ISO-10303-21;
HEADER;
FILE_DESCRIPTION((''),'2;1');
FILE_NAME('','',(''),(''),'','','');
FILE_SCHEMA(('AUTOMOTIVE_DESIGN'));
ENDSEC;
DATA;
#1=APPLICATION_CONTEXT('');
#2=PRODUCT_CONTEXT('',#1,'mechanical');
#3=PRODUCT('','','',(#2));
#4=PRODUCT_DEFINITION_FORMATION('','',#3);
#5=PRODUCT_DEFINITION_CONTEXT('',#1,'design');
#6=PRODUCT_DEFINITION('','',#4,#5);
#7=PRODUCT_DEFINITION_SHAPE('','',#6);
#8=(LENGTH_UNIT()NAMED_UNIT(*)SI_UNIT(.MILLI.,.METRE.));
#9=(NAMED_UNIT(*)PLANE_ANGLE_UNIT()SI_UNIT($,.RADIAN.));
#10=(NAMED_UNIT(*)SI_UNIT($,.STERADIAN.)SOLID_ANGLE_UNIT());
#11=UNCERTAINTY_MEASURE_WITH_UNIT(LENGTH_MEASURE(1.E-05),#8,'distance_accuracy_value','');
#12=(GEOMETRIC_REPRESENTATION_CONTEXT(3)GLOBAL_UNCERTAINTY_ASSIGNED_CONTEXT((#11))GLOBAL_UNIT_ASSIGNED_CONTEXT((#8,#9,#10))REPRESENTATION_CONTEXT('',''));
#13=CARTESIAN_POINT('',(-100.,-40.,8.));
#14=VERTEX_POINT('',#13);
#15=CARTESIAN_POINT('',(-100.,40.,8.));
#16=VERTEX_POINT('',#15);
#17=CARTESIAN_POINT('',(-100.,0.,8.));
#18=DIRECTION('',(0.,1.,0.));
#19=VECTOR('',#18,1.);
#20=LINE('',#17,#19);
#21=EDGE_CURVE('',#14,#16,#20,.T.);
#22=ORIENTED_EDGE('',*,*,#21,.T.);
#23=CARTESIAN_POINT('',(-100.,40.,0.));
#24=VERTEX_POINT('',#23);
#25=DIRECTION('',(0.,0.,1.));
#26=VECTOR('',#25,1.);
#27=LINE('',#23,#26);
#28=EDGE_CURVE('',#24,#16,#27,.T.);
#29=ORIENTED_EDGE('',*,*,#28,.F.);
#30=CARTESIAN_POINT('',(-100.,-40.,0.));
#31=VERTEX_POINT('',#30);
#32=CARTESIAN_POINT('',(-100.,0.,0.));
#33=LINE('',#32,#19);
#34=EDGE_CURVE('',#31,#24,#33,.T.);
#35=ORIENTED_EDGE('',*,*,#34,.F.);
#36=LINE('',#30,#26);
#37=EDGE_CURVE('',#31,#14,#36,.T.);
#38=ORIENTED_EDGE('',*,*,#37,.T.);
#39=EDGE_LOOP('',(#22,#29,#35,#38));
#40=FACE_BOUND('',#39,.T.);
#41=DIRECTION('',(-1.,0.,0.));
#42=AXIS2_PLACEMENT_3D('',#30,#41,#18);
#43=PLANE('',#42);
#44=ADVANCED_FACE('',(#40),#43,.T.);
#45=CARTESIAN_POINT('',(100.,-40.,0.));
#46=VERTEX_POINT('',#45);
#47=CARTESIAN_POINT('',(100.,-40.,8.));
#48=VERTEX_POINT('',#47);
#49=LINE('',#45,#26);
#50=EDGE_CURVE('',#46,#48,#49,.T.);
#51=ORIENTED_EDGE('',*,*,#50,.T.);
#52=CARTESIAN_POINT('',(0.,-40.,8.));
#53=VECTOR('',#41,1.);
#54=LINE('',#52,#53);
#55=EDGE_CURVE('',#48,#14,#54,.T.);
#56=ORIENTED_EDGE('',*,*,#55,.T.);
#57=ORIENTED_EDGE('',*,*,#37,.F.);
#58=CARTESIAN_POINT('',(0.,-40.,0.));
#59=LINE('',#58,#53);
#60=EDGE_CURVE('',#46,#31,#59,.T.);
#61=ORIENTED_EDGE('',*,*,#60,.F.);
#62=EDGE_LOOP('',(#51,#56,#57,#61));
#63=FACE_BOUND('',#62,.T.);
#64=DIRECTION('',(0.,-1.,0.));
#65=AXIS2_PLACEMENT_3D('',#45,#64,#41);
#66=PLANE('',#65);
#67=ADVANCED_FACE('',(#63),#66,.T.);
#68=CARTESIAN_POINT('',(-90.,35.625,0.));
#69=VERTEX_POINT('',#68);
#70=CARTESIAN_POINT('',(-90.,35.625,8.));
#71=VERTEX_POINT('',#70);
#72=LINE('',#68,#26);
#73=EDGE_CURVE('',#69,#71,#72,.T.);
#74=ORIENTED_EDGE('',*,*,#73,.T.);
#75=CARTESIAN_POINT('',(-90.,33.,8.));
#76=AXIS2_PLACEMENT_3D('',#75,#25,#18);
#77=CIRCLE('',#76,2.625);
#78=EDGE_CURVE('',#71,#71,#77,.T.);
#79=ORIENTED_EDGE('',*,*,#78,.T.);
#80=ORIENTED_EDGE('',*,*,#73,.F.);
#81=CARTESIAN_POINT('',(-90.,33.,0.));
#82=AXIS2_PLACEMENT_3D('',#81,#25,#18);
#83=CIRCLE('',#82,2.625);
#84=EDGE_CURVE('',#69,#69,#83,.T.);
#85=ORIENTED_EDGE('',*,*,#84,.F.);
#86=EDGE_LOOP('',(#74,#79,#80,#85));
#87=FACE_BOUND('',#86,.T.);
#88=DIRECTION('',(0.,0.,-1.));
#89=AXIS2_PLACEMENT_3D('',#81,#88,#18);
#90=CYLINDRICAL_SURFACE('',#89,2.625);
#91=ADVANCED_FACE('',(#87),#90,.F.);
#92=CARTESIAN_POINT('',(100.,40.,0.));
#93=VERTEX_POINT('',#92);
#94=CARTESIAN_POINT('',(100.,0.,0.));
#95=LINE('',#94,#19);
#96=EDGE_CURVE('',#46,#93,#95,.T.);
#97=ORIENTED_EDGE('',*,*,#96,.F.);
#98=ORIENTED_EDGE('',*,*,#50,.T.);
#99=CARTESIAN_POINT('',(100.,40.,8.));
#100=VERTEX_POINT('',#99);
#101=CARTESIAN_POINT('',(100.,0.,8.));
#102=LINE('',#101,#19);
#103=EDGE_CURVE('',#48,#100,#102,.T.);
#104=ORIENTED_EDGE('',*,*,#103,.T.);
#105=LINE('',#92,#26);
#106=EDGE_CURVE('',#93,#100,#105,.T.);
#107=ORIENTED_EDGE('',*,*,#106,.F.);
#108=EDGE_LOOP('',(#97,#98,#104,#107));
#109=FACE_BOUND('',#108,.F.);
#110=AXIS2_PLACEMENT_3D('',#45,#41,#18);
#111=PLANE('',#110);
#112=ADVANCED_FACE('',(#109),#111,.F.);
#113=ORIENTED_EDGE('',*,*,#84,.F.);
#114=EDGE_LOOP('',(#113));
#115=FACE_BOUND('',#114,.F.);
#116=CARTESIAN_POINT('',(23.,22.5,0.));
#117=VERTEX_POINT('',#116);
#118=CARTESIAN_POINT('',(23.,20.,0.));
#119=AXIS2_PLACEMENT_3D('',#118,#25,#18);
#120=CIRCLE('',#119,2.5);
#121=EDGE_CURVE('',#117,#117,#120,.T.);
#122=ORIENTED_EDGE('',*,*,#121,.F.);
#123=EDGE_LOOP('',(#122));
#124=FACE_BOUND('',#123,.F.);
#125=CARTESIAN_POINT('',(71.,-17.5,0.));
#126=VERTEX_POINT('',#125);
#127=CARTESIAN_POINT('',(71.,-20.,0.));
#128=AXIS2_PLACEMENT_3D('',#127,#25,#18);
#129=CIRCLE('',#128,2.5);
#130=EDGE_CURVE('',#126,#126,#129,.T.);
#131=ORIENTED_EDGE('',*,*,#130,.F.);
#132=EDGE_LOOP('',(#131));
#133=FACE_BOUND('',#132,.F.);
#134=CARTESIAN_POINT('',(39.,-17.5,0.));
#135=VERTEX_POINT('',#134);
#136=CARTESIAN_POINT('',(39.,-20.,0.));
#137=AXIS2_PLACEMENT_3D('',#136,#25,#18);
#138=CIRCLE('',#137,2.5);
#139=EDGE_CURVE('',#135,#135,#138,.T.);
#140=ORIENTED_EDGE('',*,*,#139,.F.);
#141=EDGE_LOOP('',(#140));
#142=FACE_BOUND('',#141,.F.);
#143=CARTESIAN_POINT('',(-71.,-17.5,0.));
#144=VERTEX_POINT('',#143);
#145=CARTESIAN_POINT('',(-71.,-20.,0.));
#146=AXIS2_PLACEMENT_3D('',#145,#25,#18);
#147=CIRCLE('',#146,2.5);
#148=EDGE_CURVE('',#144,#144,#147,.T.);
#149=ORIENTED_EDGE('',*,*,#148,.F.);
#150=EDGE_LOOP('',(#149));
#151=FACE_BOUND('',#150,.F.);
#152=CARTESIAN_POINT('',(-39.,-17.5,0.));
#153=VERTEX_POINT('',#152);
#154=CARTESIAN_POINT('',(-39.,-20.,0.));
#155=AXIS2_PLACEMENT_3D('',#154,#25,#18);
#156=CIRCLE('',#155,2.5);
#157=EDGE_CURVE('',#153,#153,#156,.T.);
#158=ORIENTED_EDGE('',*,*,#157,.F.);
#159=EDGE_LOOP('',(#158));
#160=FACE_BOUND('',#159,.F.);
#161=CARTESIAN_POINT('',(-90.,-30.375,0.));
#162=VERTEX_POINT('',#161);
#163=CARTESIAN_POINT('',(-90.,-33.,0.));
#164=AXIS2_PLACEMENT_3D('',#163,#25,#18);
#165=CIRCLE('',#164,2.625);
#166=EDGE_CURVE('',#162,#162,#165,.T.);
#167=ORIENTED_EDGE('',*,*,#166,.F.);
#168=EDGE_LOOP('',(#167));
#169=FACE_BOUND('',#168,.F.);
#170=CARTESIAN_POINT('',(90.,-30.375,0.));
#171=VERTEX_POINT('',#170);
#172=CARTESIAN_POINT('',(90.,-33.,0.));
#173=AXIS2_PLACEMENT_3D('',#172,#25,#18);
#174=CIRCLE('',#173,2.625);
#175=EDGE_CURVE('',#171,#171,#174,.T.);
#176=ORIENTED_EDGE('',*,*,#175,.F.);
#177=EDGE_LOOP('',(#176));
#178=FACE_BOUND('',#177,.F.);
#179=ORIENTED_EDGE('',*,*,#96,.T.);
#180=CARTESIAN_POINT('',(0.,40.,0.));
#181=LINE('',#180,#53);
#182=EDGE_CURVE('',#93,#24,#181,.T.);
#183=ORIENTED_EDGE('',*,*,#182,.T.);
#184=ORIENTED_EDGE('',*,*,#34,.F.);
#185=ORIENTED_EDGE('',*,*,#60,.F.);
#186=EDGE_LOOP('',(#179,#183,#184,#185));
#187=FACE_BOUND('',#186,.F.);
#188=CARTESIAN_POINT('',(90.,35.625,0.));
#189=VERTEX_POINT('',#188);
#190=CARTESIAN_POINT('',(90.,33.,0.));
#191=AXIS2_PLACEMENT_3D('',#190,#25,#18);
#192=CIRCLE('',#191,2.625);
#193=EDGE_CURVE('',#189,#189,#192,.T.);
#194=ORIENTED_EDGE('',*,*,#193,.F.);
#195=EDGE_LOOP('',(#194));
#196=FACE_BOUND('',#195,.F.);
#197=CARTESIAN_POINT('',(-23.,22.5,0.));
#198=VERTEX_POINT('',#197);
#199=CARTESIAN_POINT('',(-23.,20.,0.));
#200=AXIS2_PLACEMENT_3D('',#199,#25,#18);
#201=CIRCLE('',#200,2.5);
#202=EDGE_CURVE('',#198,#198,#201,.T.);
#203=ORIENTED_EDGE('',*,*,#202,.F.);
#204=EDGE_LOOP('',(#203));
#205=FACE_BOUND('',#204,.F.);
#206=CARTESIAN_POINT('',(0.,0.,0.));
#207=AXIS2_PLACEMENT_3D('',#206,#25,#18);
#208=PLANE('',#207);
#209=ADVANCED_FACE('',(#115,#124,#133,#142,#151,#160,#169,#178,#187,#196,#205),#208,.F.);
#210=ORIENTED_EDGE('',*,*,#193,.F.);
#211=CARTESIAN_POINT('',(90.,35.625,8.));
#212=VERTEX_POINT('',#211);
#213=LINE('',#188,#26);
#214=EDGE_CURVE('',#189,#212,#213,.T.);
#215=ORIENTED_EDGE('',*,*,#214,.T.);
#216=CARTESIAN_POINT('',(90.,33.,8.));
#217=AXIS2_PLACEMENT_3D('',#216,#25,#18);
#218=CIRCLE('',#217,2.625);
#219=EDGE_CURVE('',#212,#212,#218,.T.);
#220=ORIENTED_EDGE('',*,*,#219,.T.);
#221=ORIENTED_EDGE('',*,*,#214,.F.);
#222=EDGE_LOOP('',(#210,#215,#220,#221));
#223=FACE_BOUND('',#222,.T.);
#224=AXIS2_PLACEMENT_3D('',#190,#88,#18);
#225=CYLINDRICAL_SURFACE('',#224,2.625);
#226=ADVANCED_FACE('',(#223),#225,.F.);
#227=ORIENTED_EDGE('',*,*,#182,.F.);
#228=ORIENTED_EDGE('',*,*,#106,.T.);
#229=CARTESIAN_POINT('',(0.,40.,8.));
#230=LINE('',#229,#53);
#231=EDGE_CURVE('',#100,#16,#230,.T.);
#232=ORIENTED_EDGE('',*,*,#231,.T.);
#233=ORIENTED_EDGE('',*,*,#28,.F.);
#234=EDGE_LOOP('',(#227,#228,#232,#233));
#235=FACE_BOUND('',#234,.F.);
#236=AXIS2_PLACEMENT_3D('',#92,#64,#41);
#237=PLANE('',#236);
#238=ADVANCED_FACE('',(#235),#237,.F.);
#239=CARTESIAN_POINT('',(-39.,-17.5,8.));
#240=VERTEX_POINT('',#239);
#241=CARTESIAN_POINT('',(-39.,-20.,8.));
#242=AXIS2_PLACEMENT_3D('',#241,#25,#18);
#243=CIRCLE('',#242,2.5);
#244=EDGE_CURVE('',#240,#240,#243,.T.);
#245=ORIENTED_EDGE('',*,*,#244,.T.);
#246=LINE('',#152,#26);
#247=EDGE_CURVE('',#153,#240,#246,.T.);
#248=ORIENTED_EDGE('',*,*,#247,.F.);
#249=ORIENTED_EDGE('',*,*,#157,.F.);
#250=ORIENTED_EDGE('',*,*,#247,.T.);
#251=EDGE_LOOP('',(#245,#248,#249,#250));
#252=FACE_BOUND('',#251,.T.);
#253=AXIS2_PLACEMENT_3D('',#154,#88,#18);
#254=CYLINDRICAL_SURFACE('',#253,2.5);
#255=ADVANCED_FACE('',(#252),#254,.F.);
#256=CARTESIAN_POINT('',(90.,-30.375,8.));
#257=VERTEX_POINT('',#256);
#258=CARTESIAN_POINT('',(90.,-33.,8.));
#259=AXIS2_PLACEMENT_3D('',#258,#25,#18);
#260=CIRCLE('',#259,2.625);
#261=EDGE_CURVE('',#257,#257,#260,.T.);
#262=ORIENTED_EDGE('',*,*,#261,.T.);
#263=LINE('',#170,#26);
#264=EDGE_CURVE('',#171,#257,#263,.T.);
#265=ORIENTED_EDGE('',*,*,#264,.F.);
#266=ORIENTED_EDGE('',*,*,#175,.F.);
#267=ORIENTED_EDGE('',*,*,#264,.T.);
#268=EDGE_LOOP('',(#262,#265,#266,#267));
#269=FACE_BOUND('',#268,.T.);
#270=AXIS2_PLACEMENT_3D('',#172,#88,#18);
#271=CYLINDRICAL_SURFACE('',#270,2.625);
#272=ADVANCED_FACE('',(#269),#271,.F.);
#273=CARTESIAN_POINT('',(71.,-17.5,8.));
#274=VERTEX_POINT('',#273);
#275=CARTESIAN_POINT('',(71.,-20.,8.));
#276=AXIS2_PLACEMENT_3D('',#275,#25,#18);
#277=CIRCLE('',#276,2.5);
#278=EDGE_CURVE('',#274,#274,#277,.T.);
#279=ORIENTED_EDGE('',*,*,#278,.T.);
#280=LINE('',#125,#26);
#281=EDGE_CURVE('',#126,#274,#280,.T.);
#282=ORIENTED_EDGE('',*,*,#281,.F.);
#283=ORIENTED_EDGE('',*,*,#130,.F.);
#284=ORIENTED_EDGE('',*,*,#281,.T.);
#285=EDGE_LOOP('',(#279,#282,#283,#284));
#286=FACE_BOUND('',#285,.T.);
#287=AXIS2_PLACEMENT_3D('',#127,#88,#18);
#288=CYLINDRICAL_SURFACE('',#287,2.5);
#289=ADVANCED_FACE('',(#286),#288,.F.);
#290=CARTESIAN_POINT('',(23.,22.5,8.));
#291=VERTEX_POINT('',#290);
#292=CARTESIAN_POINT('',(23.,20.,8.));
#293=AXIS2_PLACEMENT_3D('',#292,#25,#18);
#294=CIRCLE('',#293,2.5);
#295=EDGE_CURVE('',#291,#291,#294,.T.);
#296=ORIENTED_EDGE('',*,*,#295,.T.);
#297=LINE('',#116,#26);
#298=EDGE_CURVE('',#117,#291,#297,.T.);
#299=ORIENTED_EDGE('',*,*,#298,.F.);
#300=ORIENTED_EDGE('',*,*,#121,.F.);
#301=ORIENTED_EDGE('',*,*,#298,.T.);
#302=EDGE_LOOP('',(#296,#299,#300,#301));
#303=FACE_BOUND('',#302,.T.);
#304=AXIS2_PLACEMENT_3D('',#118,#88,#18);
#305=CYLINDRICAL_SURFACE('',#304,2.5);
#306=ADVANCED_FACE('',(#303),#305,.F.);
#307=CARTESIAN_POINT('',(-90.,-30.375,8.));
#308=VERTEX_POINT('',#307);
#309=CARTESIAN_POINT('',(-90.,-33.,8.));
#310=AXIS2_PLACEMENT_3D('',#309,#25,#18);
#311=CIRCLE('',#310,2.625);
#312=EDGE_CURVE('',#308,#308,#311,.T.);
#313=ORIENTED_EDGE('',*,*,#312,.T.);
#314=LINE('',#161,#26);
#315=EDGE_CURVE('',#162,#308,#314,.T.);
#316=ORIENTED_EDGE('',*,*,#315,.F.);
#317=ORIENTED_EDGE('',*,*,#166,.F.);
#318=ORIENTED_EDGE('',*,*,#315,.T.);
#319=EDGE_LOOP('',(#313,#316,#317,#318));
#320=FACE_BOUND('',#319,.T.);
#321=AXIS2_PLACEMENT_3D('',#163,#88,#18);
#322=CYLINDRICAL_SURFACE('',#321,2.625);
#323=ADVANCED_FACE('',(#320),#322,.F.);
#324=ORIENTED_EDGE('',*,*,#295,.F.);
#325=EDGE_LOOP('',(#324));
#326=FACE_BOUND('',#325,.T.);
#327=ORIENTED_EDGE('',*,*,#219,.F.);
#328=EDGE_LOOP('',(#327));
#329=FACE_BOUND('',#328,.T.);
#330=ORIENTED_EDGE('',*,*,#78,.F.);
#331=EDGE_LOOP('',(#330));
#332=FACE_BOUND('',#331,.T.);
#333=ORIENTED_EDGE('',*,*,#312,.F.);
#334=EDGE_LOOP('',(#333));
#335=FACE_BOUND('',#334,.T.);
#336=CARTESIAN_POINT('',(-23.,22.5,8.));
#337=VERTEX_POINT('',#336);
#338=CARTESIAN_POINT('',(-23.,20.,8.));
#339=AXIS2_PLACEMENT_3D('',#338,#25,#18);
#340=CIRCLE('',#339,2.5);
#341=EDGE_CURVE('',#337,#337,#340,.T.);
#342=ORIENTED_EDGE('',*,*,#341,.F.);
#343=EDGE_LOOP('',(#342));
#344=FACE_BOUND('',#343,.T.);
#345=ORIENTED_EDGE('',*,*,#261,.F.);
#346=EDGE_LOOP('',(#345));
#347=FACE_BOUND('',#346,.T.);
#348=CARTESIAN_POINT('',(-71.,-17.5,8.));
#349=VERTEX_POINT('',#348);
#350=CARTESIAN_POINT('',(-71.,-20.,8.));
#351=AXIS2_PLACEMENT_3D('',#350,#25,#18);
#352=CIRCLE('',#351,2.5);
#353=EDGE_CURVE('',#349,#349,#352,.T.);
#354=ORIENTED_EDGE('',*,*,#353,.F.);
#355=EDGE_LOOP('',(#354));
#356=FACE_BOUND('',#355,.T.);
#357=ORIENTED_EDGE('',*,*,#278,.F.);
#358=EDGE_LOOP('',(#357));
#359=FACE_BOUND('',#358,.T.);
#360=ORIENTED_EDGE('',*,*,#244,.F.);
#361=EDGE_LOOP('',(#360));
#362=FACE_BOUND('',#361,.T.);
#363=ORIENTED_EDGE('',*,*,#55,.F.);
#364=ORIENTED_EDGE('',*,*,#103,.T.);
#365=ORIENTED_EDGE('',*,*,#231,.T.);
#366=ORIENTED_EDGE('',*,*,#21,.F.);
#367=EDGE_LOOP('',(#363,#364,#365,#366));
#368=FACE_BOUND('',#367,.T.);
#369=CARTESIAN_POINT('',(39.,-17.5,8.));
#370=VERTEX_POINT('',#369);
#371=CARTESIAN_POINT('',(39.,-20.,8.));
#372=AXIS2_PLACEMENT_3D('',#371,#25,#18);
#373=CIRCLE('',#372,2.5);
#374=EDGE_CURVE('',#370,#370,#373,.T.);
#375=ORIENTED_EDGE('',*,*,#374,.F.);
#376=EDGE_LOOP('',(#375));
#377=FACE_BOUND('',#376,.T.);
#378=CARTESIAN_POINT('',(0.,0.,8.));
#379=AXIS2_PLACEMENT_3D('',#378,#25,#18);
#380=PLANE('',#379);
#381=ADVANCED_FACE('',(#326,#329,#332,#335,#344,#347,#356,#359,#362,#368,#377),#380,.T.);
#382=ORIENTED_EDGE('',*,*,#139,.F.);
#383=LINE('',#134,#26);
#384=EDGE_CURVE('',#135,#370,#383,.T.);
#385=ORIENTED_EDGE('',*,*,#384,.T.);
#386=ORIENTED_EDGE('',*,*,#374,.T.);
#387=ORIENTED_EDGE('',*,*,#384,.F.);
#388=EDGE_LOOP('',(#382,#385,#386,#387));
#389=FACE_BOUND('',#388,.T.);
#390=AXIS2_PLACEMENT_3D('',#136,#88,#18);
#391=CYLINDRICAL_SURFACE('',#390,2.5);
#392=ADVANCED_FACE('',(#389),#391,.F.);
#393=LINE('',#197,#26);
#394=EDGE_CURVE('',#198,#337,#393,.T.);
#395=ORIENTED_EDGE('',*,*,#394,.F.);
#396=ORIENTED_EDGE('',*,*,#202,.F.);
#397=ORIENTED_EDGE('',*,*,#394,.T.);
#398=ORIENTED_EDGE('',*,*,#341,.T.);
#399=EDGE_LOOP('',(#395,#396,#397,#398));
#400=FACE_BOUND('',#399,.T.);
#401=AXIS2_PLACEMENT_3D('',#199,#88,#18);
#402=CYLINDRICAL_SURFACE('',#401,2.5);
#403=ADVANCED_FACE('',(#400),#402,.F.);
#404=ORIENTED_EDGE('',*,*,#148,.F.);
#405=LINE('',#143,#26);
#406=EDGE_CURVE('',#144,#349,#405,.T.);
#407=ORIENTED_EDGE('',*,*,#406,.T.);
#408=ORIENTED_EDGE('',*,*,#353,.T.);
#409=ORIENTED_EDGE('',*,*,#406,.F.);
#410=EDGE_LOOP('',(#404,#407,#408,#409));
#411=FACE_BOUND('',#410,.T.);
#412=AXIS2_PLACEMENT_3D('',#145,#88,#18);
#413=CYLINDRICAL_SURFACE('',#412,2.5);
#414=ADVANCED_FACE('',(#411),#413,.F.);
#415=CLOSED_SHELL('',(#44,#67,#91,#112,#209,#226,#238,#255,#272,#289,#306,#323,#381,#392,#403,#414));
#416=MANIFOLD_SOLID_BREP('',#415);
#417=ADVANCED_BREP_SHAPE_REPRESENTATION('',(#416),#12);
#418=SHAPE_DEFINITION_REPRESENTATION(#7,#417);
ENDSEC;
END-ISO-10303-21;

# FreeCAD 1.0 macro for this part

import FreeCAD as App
import Part
import Sketcher

V = App.Vector
Q = App.Units.Quantity


def add_polygon(sketch, points):
    """Adds a closed chain of lines whose ends are joined by coincident constraints."""
    first, n = sketch.GeometryCount, len(points)
    for a, b in zip(points, points[1:] + points[:1]):
        sketch.addGeometry(Part.LineSegment(App.Vector(*a, 0), App.Vector(*b, 0)), False)
    for i in range(n):
        sketch.addConstraint(Sketcher.Constraint("Coincident", first + i, 2, first + (i + 1) % n, 1))

doc = App.newDocument("Part")
body = doc.addObject("PartDesign::Body", "Body")

sketch1 = doc.addObject("Sketcher::SketchObject", "Sketch")
body.addObject(sketch1)
sketch1.AttachmentSupport = (doc.XY_Plane, [""])
sketch1.MapMode = "FlatFace"
add_polygon(sketch1, [(-100, -40), (100, -40), (100, 40), (-100, 40)])
sketch1.addGeometry(Part.Circle(V(90, -33, 0), V(0, 0, 1), 2.6), False)
sketch1.addGeometry(Part.Circle(V(71, -20, 0), V(0, 0, 1), 2.5), False)
sketch1.addGeometry(Part.Circle(V(39, -20, 0), V(0, 0, 1), 2.5), False)
sketch1.addGeometry(Part.Circle(V(90, 33, 0), V(0, 0, 1), 2.6), False)
sketch1.addGeometry(Part.Circle(V(23, 20, 0), V(0, 0, 1), 2.5), False)
sketch1.addGeometry(Part.Circle(V(-39, -20, 0), V(0, 0, 1), 2.5), False)
sketch1.addGeometry(Part.Circle(V(-90, -33, 0), V(0, 0, 1), 2.6), False)
sketch1.addGeometry(Part.Circle(V(-71, -20, 0), V(0, 0, 1), 2.5), False)
sketch1.addGeometry(Part.Circle(V(-23, 20, 0), V(0, 0, 1), 2.5), False)
sketch1.addGeometry(Part.Circle(V(-90, 33, 0), V(0, 0, 1), 2.6), False)
sketch1.addConstraint(Sketcher.Constraint("Horizontal", 0))
sketch1.addConstraint(Sketcher.Constraint("Vertical", 1))
sketch1.addConstraint(Sketcher.Constraint("Horizontal", 2))
sketch1.addConstraint(Sketcher.Constraint("Vertical", 3))
sketch1.addConstraint(Sketcher.Constraint("Equal", 5, 6))
sketch1.addConstraint(Sketcher.Constraint("Equal", 4, 7))
sketch1.addConstraint(Sketcher.Constraint("Equal", 6, 8))
sketch1.addConstraint(Sketcher.Constraint("Equal", 8, 9))
sketch1.addConstraint(Sketcher.Constraint("Equal", 7, 10))
sketch1.addConstraint(Sketcher.Constraint("Equal", 9, 11))
sketch1.addConstraint(Sketcher.Constraint("Equal", 11, 12))
sketch1.addConstraint(Sketcher.Constraint("Equal", 10, 13))
sketch1.addConstraint(Sketcher.Constraint("Symmetric", 7, 3, 10, 3, -1, 1))
sketch1.addConstraint(Sketcher.Constraint("Symmetric", 4, 3, 13, 3, -1, 1))
sketch1.addConstraint(Sketcher.Constraint("Symmetric", 0, 2, 2, 2, -1, 1))
sketch1.addConstraint(Sketcher.Constraint("Symmetric", 6, 3, 9, 3, -2))
sketch1.addConstraint(Sketcher.Constraint("Symmetric", 4, 3, 10, 3, -2))
sketch1.addConstraint(Sketcher.Constraint("Symmetric", 5, 3, 11, 3, -2))
sketch1.addConstraint(Sketcher.Constraint("Symmetric", 8, 3, 12, 3, -2))
sketch1.addConstraint(Sketcher.Constraint("Horizontal", 5, 3, 6, 3))
sketch1.addConstraint(Sketcher.Constraint("Diameter", 5, Q("5 mm")))
sketch1.addConstraint(Sketcher.Constraint("Diameter", 4, Q("5.25 mm")))
sketch1.addConstraint(Sketcher.Constraint("DistanceX", 0, 1, 0, 2, Q("200 mm")))
sketch1.addConstraint(Sketcher.Constraint("DistanceY", 1, 1, 1, 2, Q("80 mm")))
sketch1.addConstraint(Sketcher.Constraint("DistanceX", -1, 1, 4, 3, Q("90 mm")))
sketch1.addConstraint(Sketcher.Constraint("DistanceY", 4, 3, -1, 1, Q("33 mm")))
sketch1.addConstraint(Sketcher.Constraint("DistanceX", -1, 1, 5, 3, Q("71 mm")))
sketch1.addConstraint(Sketcher.Constraint("DistanceY", 5, 3, -1, 1, Q("20 mm")))
sketch1.addConstraint(Sketcher.Constraint("DistanceX", -1, 1, 6, 3, Q("39 mm")))
sketch1.addConstraint(Sketcher.Constraint("DistanceX", -1, 1, 8, 3, Q("23 mm")))
sketch1.addConstraint(Sketcher.Constraint("DistanceY", -1, 1, 8, 3, Q("20 mm")))
pad1 = doc.addObject("PartDesign::Pad", "Pad")
body.addObject(pad1)
pad1.Profile = sketch1
pad1.Length = 8

doc.recompute()
